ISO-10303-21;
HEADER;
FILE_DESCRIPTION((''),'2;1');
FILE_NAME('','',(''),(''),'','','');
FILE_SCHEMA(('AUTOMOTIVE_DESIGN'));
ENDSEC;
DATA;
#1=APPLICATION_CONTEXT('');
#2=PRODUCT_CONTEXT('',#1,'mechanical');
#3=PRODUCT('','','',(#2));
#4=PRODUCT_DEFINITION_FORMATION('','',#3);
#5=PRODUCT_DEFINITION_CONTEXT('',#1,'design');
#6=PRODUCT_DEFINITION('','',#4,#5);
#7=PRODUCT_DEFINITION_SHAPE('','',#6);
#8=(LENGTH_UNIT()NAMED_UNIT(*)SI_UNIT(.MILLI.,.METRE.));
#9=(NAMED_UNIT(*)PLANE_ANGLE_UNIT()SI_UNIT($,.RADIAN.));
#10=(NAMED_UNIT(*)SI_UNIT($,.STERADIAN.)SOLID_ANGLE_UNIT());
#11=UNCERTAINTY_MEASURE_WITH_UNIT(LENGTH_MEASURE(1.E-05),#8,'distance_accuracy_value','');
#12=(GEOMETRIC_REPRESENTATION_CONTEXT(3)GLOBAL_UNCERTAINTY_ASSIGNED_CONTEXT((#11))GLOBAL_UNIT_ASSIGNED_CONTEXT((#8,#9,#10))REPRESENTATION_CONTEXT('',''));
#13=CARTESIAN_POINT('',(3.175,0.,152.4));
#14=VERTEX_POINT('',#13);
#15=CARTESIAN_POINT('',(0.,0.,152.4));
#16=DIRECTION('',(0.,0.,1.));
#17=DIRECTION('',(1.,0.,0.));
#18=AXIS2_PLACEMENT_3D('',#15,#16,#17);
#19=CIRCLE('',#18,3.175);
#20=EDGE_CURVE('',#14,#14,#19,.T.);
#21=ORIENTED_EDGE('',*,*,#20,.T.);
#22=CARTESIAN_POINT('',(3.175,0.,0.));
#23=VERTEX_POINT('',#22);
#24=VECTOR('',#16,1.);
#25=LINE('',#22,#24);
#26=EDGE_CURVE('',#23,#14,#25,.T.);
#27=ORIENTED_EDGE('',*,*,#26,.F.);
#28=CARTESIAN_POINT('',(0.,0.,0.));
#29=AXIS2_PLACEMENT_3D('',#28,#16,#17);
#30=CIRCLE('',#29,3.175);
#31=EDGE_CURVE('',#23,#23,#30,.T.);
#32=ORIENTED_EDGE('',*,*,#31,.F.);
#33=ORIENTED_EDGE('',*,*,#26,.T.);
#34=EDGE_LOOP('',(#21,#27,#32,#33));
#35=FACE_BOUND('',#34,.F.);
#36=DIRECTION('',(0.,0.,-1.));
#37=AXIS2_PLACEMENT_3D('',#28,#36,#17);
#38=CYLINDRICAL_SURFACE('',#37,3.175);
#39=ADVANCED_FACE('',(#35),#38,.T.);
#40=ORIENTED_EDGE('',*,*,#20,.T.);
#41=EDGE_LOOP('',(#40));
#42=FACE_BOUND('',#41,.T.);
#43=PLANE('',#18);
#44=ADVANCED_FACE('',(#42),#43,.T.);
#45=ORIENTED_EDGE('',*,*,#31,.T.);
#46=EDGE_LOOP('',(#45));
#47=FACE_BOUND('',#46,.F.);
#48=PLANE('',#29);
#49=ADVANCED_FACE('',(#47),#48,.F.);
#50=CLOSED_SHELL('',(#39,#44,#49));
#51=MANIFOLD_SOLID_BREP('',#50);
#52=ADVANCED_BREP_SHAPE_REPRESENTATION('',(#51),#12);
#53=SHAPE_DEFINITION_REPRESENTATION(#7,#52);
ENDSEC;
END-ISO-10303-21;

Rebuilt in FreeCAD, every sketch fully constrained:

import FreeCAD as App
import Part
import Sketcher

V = App.Vector
Q = App.Units.Quantity

doc = App.newDocument("Part")
body = doc.addObject("PartDesign::Body", "Body")

sketch1 = doc.addObject("Sketcher::SketchObject", "Sketch")
body.addObject(sketch1)
sketch1.AttachmentSupport = (doc.XY_Plane, [""])
sketch1.MapMode = "FlatFace"
sketch1.addGeometry(Part.Circle(V(0, 0, 0), V(0, 0, 1), 3.175), False)
sketch1.addConstraint(Sketcher.Constraint("Coincident", 0, 3, -1, 1))
sketch1.addConstraint(Sketcher.Constraint("Diameter", 0, Q("0.25 in")))
pad1 = doc.addObject("PartDesign::Pad", "Pad")
body.addObject(pad1)
pad1.Profile = sketch1
pad1.Length = Q("6 in")

doc.recompute()
